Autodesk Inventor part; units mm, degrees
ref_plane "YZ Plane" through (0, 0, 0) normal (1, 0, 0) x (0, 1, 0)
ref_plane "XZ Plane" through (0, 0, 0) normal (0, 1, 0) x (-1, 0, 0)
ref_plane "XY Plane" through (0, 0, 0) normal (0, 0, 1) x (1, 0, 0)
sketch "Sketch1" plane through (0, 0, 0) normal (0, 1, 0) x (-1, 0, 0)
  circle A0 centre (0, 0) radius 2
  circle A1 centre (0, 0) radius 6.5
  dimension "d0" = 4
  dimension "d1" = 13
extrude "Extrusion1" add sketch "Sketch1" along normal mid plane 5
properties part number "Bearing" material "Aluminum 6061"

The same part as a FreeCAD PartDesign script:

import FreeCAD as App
import Part
import Sketcher

V = App.Vector
Q = App.Units.Quantity

doc = App.newDocument("Part")
body = doc.addObject("PartDesign::Body", "Body")

sketch1 = body.newObject("Sketcher::SketchObject", "Sketch")
sketch1.AttachmentSupport = (doc.getObject("XZ_Plane"), [""])
sketch1.MapMode = "FlatFace"
sketch1.addGeometry(Part.Circle(V(0, 0, 0), V(0, 0, 1), 6.5), False)
sketch1.addGeometry(Part.Circle(V(0, 0, 0), V(0, 0, 1), 2), False)
sketch1.addConstraint(Sketcher.Constraint("Coincident", 0, 3, -1, 1))
sketch1.addConstraint(Sketcher.Constraint("Coincident", 1, 3, -1, 1))
sketch1.addConstraint(Sketcher.Constraint("Diameter", 0, Q("13 mm")))
sketch1.addConstraint(Sketcher.Constraint("Diameter", 1, Q("4 mm")))
pad1 = body.newObject("PartDesign::Pad", "Pad")
pad1.Profile = sketch1
pad1.Length = 5
pad1.Midplane = True

doc.recompute()
